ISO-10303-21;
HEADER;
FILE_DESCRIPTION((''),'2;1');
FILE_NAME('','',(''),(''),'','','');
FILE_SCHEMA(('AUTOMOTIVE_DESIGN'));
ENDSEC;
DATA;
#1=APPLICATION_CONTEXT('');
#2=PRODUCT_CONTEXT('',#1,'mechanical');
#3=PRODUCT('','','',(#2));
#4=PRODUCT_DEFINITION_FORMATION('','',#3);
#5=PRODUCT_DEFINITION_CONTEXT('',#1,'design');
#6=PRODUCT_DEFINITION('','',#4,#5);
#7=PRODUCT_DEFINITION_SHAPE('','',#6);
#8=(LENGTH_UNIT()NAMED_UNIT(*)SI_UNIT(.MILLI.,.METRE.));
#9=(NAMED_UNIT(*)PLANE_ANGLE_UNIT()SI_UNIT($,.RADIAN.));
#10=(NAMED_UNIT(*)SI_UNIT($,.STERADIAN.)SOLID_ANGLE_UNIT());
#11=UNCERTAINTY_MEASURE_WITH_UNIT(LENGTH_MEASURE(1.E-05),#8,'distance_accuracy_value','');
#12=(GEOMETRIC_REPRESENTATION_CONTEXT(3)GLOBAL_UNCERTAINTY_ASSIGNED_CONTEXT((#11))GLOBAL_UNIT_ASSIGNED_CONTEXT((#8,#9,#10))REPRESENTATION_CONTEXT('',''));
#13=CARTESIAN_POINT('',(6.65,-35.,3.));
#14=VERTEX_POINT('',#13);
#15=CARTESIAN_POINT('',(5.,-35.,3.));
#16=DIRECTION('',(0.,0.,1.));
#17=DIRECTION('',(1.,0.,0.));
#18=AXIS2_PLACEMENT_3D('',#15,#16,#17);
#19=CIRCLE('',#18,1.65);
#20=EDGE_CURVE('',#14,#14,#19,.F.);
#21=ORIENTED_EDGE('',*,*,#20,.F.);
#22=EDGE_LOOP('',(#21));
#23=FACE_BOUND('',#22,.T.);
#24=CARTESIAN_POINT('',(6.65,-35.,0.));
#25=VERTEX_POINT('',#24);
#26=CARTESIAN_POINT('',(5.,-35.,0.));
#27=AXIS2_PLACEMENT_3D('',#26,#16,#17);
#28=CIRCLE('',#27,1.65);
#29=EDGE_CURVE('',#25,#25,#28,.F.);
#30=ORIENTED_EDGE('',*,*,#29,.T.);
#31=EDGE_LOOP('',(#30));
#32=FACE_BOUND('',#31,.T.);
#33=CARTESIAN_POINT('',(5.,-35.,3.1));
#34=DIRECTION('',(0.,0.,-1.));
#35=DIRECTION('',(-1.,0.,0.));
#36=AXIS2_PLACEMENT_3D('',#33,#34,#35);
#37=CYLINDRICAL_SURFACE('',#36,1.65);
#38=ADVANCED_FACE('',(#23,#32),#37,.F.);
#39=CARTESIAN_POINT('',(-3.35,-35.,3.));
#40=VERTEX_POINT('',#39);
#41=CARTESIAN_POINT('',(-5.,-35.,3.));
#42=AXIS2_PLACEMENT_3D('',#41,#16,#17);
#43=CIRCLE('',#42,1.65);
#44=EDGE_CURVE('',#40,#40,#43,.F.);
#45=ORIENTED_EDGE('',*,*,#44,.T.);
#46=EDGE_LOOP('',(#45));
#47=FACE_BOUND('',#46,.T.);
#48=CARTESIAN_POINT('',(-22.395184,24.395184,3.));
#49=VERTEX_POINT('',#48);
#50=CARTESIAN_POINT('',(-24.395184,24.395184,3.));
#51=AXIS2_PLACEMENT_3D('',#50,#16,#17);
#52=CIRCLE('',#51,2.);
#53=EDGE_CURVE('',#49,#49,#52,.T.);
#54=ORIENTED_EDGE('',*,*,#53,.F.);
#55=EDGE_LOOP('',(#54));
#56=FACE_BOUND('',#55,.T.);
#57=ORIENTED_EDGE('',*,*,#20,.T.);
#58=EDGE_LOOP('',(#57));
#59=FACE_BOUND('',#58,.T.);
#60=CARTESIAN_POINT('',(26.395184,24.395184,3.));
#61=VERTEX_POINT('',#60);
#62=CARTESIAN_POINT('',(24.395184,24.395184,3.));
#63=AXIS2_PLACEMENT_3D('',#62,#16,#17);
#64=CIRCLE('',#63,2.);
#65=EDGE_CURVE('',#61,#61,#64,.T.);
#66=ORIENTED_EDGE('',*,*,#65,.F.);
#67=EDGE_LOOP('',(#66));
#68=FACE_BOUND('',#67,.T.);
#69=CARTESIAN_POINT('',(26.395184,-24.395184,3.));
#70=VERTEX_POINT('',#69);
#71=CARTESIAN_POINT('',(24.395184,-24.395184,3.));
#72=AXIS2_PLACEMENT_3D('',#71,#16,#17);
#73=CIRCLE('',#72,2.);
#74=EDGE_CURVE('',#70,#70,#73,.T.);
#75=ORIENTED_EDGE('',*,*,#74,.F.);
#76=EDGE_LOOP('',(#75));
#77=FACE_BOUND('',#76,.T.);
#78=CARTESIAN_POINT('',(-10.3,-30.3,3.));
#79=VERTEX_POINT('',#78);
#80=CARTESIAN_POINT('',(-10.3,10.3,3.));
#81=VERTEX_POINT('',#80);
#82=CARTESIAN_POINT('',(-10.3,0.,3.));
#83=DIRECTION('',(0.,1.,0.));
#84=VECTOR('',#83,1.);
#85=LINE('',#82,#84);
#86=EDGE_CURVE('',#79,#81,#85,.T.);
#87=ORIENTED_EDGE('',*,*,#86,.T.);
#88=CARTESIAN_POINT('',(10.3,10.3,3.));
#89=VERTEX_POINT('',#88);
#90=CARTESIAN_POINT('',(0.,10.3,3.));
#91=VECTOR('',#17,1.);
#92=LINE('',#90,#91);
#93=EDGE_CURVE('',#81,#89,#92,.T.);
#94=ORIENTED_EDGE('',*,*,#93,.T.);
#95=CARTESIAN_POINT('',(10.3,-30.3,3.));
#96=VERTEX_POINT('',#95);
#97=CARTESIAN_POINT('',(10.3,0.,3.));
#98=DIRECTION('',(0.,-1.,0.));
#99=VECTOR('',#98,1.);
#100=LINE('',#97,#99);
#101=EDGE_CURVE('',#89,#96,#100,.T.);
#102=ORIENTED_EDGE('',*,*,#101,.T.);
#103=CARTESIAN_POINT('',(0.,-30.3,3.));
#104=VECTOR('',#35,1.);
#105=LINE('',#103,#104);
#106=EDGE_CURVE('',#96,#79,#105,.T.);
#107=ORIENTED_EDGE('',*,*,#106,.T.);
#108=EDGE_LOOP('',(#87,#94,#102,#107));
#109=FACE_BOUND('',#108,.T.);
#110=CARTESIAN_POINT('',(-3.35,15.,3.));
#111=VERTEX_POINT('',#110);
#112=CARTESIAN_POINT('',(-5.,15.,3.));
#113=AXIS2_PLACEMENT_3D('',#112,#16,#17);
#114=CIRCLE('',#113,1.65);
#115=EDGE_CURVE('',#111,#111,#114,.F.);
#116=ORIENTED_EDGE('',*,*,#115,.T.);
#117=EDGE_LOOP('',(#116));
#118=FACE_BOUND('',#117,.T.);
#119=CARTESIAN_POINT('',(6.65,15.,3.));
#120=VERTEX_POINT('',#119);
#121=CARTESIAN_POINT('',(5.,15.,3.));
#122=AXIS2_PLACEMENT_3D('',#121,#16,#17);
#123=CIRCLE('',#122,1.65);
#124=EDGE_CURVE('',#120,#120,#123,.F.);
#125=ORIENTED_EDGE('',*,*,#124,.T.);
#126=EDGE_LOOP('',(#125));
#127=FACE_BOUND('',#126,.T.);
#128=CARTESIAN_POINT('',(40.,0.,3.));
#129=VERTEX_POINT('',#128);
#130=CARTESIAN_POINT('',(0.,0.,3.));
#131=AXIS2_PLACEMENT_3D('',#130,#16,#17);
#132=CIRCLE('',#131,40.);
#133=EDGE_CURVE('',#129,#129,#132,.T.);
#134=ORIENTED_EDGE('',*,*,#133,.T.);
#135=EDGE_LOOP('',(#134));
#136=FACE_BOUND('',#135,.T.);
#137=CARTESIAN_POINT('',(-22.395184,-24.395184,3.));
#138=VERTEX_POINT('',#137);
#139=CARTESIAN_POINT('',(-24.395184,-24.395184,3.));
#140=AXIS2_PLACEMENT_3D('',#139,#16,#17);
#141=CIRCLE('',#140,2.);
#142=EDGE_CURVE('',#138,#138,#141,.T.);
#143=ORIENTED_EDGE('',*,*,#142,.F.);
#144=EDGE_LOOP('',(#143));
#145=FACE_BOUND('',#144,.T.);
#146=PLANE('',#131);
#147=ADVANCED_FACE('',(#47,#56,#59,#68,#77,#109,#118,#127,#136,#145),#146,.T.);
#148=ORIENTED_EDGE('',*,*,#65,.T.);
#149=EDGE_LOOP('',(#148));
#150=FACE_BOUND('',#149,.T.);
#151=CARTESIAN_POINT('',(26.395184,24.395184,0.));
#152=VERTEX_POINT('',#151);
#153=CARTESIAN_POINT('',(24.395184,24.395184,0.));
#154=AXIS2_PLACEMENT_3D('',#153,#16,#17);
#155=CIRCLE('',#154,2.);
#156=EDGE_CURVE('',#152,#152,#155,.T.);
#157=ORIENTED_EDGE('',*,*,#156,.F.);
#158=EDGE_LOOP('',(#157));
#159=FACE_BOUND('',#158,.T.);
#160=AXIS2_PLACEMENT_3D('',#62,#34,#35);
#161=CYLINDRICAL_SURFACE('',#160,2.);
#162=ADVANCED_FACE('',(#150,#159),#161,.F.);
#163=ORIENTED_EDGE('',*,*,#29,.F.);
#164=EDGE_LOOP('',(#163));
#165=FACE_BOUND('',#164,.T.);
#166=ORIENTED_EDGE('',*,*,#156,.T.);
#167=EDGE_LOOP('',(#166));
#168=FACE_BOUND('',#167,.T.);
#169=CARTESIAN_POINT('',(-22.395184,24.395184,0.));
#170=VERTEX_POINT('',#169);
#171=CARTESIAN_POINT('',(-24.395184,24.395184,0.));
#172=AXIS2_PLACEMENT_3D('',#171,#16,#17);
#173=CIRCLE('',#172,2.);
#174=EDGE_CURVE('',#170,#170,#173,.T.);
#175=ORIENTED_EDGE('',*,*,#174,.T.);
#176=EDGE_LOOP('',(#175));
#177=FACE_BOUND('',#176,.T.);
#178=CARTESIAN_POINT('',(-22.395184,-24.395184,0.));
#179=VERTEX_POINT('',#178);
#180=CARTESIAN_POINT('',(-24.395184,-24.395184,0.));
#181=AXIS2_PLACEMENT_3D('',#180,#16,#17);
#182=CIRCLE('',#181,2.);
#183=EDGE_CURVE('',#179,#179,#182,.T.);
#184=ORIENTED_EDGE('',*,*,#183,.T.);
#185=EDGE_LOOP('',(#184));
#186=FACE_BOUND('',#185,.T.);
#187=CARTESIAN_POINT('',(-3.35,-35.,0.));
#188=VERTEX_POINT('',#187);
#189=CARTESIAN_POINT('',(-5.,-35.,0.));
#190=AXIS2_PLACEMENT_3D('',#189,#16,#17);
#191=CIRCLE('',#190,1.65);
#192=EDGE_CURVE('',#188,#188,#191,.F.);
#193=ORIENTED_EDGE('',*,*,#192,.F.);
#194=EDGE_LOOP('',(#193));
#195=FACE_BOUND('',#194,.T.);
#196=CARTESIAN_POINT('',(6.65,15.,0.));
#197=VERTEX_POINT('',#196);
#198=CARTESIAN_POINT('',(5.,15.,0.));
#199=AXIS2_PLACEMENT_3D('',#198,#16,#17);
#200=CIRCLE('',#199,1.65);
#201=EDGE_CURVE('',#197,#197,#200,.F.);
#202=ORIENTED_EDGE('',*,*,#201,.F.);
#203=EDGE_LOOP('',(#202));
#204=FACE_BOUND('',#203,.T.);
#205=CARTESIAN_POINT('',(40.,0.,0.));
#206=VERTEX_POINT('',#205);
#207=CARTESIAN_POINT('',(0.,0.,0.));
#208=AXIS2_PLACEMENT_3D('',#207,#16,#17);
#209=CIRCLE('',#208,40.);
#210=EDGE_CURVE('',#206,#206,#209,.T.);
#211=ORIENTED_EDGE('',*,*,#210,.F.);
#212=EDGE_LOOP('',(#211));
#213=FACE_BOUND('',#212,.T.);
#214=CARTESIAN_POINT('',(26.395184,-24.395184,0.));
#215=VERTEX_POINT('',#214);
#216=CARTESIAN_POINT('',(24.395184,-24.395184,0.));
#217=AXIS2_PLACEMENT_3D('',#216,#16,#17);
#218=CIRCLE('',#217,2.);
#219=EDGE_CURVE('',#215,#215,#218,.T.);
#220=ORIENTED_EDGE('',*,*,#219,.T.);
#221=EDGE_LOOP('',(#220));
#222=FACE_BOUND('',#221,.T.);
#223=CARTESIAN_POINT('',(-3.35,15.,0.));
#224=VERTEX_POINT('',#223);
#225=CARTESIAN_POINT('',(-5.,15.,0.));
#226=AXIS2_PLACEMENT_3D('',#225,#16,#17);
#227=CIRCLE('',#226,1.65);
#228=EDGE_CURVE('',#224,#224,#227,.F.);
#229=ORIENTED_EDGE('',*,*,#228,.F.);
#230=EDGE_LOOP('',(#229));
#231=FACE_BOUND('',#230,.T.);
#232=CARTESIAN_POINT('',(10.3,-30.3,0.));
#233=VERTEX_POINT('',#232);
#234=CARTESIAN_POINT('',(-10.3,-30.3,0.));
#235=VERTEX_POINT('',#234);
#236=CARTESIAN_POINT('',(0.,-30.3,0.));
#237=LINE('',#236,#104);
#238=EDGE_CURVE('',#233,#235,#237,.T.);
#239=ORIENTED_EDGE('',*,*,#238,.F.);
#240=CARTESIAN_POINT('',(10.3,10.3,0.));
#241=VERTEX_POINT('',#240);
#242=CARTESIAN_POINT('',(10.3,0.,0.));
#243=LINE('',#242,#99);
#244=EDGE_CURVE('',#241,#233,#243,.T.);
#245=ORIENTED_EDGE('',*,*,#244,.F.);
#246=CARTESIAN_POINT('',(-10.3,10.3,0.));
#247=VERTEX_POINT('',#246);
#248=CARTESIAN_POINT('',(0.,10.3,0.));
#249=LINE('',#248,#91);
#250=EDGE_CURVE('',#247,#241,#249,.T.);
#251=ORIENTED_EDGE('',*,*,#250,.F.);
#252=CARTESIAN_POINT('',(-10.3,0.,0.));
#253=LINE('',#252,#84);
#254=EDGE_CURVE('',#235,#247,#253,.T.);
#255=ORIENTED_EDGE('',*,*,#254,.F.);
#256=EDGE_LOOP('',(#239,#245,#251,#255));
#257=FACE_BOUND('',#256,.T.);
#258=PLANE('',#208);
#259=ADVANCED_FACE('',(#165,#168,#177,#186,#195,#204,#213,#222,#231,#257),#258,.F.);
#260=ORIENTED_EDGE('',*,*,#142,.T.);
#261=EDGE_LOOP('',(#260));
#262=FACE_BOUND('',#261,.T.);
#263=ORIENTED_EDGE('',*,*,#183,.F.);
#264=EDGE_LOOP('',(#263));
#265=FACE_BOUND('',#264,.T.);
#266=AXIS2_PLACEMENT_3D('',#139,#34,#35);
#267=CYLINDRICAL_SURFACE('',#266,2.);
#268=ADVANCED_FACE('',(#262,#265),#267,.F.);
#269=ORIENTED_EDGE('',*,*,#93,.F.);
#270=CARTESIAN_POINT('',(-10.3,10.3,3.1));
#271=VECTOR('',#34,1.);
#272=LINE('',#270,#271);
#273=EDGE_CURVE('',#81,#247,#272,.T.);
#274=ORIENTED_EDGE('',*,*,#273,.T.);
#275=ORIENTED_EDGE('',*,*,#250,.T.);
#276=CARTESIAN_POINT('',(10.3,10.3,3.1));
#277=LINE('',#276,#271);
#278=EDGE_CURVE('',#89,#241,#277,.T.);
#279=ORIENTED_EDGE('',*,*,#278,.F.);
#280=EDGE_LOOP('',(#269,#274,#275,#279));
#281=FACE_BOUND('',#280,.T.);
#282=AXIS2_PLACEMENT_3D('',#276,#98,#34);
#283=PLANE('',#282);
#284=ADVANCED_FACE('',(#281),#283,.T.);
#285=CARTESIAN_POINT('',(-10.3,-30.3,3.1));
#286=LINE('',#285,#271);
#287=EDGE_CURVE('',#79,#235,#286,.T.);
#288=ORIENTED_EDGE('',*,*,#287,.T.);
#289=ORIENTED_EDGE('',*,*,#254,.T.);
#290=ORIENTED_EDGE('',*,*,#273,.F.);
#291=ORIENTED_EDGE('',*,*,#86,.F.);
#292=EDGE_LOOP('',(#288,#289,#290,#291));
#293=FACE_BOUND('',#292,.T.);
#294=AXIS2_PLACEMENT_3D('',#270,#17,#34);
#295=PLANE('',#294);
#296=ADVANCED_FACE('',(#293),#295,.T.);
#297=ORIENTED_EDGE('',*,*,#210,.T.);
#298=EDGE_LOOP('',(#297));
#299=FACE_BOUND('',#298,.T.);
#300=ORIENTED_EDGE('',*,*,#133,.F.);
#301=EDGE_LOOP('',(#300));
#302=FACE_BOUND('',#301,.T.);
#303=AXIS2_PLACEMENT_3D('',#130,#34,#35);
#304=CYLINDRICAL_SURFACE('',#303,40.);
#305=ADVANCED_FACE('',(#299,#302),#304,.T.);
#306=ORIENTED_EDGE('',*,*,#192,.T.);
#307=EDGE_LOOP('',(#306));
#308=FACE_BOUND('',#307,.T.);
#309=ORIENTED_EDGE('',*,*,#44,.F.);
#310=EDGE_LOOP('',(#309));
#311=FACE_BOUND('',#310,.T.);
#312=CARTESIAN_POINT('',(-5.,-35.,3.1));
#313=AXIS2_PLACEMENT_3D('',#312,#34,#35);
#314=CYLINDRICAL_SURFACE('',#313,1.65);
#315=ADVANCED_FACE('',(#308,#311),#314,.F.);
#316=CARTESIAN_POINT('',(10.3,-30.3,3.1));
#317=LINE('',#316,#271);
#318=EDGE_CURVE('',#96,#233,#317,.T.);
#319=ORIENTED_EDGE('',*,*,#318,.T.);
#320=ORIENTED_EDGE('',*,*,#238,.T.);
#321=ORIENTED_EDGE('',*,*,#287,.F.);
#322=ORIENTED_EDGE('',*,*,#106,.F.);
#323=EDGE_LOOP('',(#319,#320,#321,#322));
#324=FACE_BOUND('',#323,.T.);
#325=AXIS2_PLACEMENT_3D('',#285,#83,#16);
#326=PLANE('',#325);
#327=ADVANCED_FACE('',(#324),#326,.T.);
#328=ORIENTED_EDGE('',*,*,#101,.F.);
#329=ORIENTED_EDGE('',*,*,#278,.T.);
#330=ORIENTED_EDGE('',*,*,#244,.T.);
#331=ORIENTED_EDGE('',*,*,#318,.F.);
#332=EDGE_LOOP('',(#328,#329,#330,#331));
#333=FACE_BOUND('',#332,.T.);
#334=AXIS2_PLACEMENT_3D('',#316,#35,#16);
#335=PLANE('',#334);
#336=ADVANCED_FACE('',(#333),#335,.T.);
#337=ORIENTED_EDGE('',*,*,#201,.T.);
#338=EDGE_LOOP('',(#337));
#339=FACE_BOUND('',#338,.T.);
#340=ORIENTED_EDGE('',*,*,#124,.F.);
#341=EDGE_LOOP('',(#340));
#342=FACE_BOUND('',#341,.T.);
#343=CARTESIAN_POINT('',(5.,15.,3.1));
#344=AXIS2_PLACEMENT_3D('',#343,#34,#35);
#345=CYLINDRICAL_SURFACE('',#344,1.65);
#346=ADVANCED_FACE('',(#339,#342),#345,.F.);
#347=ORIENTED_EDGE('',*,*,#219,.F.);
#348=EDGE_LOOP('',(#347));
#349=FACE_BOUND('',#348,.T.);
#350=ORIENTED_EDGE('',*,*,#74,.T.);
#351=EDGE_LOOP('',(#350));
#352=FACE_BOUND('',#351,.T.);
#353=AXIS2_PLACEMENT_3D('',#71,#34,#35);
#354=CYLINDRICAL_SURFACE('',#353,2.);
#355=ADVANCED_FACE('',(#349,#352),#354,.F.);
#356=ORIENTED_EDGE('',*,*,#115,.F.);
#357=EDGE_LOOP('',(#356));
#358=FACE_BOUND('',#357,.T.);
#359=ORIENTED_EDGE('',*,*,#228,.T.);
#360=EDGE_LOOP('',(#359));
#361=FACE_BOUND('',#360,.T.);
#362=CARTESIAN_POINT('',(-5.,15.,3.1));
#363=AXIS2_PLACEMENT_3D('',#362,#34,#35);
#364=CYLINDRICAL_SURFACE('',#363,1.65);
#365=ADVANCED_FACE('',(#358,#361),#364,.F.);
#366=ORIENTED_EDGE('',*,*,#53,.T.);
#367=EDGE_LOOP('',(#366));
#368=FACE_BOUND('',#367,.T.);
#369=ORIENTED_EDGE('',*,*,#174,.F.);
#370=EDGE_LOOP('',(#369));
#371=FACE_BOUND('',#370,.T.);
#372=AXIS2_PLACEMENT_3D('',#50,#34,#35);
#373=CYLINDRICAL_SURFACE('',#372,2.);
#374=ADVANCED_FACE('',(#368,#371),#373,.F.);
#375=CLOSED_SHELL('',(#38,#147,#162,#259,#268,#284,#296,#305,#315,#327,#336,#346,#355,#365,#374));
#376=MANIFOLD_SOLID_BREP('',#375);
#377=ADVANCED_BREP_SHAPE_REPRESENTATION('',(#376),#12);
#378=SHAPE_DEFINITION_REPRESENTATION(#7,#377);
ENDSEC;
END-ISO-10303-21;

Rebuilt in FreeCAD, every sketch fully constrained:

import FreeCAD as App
import Part
import Sketcher

V = App.Vector

doc = App.newDocument("Part")
body = doc.addObject("PartDesign::Body", "Body")

# Sketch on XY plane
sketch1 = doc.addObject("Sketcher::SketchObject", "Sketch")
body.addObject(sketch1)
sketch1.AttachmentSupport = (doc.XY_Plane, [""])
sketch1.MapMode = "FlatFace"
sketch1.addGeometry([
    Part.Circle(V(0, 0, 0), V(0, 0, 1), 40),  # 0
    Part.Circle(V(-24.395184, -24.395184, 0), V(0, 0, 1), 2),  # 1
    Part.Circle(V(24.395184, -24.395184, 0), V(0, 0, 1), 2),  # 2
    Part.Circle(V(-24.395184, 24.395184, 0), V(0, 0, 1), 2),  # 3
    Part.Circle(V(24.395184, 24.395184, 0), V(0, 0, 1), 2),  # 4
], False)
sketch1.addConstraint([
    Sketcher.Constraint("Coincident", 0, 3, -1, 1),
    Sketcher.Constraint("Equal", 1, 2),
    Sketcher.Constraint("Equal", 2, 3),
    Sketcher.Constraint("Equal", 3, 4),
    Sketcher.Constraint("Symmetric", 2, 3, 3, 3, -1, 1),
    Sketcher.Constraint("Symmetric", 1, 3, 4, 3, -1, 1),
    Sketcher.Constraint("Symmetric", 1, 3, 2, 3, -2),
    Sketcher.Constraint("Diameter", 0, 80.0),
    Sketcher.Constraint("Diameter", 1, 4.0),
    Sketcher.Constraint("DistanceX", 1, 3, -1, 1, 24.395184),
    Sketcher.Constraint("DistanceY", 1, 3, -1, 1, 24.395184),
])
pad1 = doc.addObject("PartDesign::Pad", "Pad")
body.addObject(pad1)
pad1.Profile = sketch1
pad1.Length = 3

# Sketch on XY plane
sketch2 = doc.addObject("Sketcher::SketchObject", "Sketch001")
body.addObject(sketch2)
sketch2.AttachmentSupport = (doc.XY_Plane, [""])
sketch2.MapMode = "FlatFace"
sketch2.AttachmentOffset = App.Placement(V(0, 0, -0.1), App.Rotation())
sketch2.addGeometry([
    Part.LineSegment(V(-10.3, 10.3, 0), V(-10.3, -30.3, 0)),
    Part.LineSegment(V(-10.3, -30.3, 0), V(10.3, -30.3, 0)),
    Part.LineSegment(V(10.3, -30.3, 0), V(10.3, 10.3, 0)),
    Part.LineSegment(V(10.3, 10.3, 0), V(-10.3, 10.3, 0)),
], False)
sketch2.addConstraint([
    Sketcher.Constraint("Coincident", 0, 2, 1, 1),
    Sketcher.Constraint("Coincident", 1, 2, 2, 1),
    Sketcher.Constraint("Coincident", 2, 2, 3, 1),
    Sketcher.Constraint("Coincident", 3, 2, 0, 1),
    Sketcher.Constraint("Vertical", 0),
    Sketcher.Constraint("Horizontal", 1),
    Sketcher.Constraint("Vertical", 2),
    Sketcher.Constraint("Horizontal", 3),
    Sketcher.Constraint("DistanceX", 1, 1, 1, 2, 20.6),
    Sketcher.Constraint("DistanceY", 0, 2, 0, 1, 40.6),
    Sketcher.Constraint("DistanceX", 0, 2, -1, 1, 10.3),
    Sketcher.Constraint("DistanceY", 0, 2, -1, 1, 30.3),
])
pocket1 = doc.addObject("PartDesign::Pocket", "Pocket")
body.addObject(pocket1)
pocket1.Profile = sketch2
pocket1.Length = 3.2
pocket1.Reversed = True

# Sketch on XY plane
sketch3 = doc.addObject("Sketcher::SketchObject", "Sketch002")
body.addObject(sketch3)
sketch3.AttachmentSupport = (doc.XY_Plane, [""])
sketch3.MapMode = "FlatFace"
sketch3.AttachmentOffset = App.Placement(V(0, 0, -0.1), App.Rotation())
sketch3.addGeometry([
    Part.Circle(V(-5, -35, 0), V(0, 0, 1), 1.65),
    Part.Circle(V(-5, 15, 0), V(0, 0, 1), 1.65),
    Part.Circle(V(5, -35, 0), V(0, 0, 1), 1.65),
    Part.Circle(V(5, 15, 0), V(0, 0, 1), 1.65),
], False)
sketch3.addConstraint([
    Sketcher.Constraint("Equal", 0, 1),
    Sketcher.Constraint("Equal", 1, 2),
    Sketcher.Constraint("Equal", 2, 3),
    Sketcher.Constraint("Symmetric", 0, 3, 2, 3, -2),
    Sketcher.Constraint("Symmetric", 1, 3, 3, 3, -2),
    Sketcher.Constraint("Vertical", 0, 3, 1, 3),
    Sketcher.Constraint("Diameter", 0, 3.3),
    Sketcher.Constraint("DistanceX", 0, 3, -1, 1, 5.0),
    Sketcher.Constraint("DistanceY", 0, 3, -1, 1, 35.0),
    Sketcher.Constraint("DistanceY", -1, 1, 1, 3, 15.0),
])
pocket2 = doc.addObject("PartDesign::Pocket", "Pocket001")
body.addObject(pocket2)
pocket2.Profile = sketch3
pocket2.Length = 3.2
pocket2.Reversed = True

doc.recompute()
